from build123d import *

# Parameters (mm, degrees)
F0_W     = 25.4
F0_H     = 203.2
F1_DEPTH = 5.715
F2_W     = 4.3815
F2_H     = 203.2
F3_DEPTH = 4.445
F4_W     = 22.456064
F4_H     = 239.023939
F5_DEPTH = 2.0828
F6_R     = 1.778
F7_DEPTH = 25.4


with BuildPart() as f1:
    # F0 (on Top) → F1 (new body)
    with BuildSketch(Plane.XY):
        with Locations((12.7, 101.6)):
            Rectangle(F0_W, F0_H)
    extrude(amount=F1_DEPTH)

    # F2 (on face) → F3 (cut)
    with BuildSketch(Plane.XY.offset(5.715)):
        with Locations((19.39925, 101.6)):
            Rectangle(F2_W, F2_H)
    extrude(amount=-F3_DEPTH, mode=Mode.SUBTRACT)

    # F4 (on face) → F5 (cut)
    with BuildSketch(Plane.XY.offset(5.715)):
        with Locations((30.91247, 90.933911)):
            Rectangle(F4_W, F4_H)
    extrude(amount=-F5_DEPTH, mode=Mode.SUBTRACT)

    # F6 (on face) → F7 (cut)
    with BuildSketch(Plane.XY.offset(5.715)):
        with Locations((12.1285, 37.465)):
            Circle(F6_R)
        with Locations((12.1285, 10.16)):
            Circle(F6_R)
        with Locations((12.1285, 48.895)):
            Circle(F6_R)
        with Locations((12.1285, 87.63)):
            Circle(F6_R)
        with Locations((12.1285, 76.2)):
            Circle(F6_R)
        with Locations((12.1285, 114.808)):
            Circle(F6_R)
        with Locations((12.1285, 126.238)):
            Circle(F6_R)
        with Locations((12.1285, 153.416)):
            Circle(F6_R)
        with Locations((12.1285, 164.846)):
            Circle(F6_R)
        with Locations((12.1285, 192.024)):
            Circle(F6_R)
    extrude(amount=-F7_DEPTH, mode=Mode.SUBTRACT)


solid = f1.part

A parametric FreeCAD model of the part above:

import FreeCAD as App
import Part
import Sketcher

V = App.Vector
Q = App.Units.Quantity

doc = App.newDocument("Part")
body = doc.addObject("PartDesign::Body", "Body")

# Sketch on XY plane
sketch1 = body.newObject("Sketcher::SketchObject", "Sketch")
sketch1.AttachmentSupport = (doc.getObject("XY_Plane"), [""])
sketch1.MapMode = "FlatFace"
sketch1.addGeometry(Part.LineSegment(V(0, 203, 0), V(0, 0, 0)), False)
sketch1.addGeometry(Part.LineSegment(V(0, 0, 0), V(25, 0, 0)), False)
sketch1.addGeometry(Part.LineSegment(V(25, 0, 0), V(25, 203, 0)), False)
sketch1.addGeometry(Part.LineSegment(V(25, 203, 0), V(0, 203, 0)), False)
sketch1.addConstraint(Sketcher.Constraint("Coincident", 0, 2, 1, 1))
sketch1.addConstraint(Sketcher.Constraint("Coincident", 1, 2, 2, 1))
sketch1.addConstraint(Sketcher.Constraint("Coincident", 2, 2, 3, 1))
sketch1.addConstraint(Sketcher.Constraint("Coincident", 3, 2, 0, 1))
sketch1.addConstraint(Sketcher.Constraint("Vertical", 0))
sketch1.addConstraint(Sketcher.Constraint("Horizontal", 1))
sketch1.addConstraint(Sketcher.Constraint("Vertical", 2))
sketch1.addConstraint(Sketcher.Constraint("Horizontal", 3))
sketch1.addConstraint(Sketcher.Constraint("Coincident", 0, 2, -1, 1))
sketch1.addConstraint(Sketcher.Constraint("DistanceX", 1, 1, 1, 2, Q("1 in")))
sketch1.addConstraint(Sketcher.Constraint("DistanceY", 0, 2, 0, 1, Q("8 in")))
pad1 = body.newObject("PartDesign::Pad", "Pad")
pad1.Profile = sketch1
pad1.Length = Q("0.225 in")

# Sketch on XY plane
sketch2 = body.newObject("Sketcher::SketchObject", "Sketch001")
sketch2.AttachmentSupport = (doc.getObject("XY_Plane"), [""])
sketch2.MapMode = "FlatFace"
sketch2.AttachmentOffset = App.Placement(V(0, 0, 0.225 * 25.4), App.Rotation())
sketch2.addGeometry(Part.LineSegment(V(17.2, 203.2, 0), V(17.2, 0, 0)), False)
sketch2.addGeometry(Part.LineSegment(V(17.2, 0, 0), V(21.6, 0, 0)), False)
sketch2.addGeometry(Part.LineSegment(V(21.6, 0, 0), V(21.6, 203.2, 0)), False)
sketch2.addGeometry(Part.LineSegment(V(21.6, 203.2, 0), V(17.2, 203.2, 0)), False)
sketch2.addConstraint(Sketcher.Constraint("Coincident", 0, 2, 1, 1))
sketch2.addConstraint(Sketcher.Constraint("Coincident", 1, 2, 2, 1))
sketch2.addConstraint(Sketcher.Constraint("Coincident", 2, 2, 3, 1))
sketch2.addConstraint(Sketcher.Constraint("Coincident", 3, 2, 0, 1))
sketch2.addConstraint(Sketcher.Constraint("Vertical", 0))
sketch2.addConstraint(Sketcher.Constraint("Horizontal", 1))
sketch2.addConstraint(Sketcher.Constraint("Vertical", 2))
sketch2.addConstraint(Sketcher.Constraint("Horizontal", 3))
sketch2.addConstraint(Sketcher.Constraint("PointOnObject", 0, 2, -1))
sketch2.addConstraint(Sketcher.Constraint("DistanceY", 0, 2, 0, 1, Q("8 in")))
sketch2.addConstraint(Sketcher.Constraint("DistanceX", -1, 1, 1, 2, Q("0.85 in")))
sketch2.addConstraint(Sketcher.Constraint("DistanceX", 1, 1, 1, 2, Q("0.1725 in")))
pocket1 = body.newObject("PartDesign::Pocket", "Pocket")
pocket1.Profile = sketch2
pocket1.Length = Q("0.175 in")

# Sketch on XY plane
sketch3 = body.newObject("Sketcher::SketchObject", "Sketch002")
sketch3.AttachmentSupport = (doc.getObject("XY_Plane"), [""])
sketch3.MapMode = "FlatFace"
sketch3.AttachmentOffset = App.Placement(V(0, 0, 0.225 * 25.4), App.Rotation())
sketch3.addGeometry(Part.LineSegment(V(20, 210, 0), V(20, -29, 0)), False)
sketch3.addGeometry(Part.LineSegment(V(20, -29, 0), V(42, -29, 0)), False)
sketch3.addGeometry(Part.LineSegment(V(42, -29, 0), V(42, 210, 0)), False)
sketch3.addGeometry(Part.LineSegment(V(42, 210, 0), V(20, 210, 0)), False)
sketch3.addConstraint(Sketcher.Constraint("Coincident", 0, 2, 1, 1))
sketch3.addConstraint(Sketcher.Constraint("Coincident", 1, 2, 2, 1))
sketch3.addConstraint(Sketcher.Constraint("Coincident", 2, 2, 3, 1))
sketch3.addConstraint(Sketcher.Constraint("Coincident", 3, 2, 0, 1))
sketch3.addConstraint(Sketcher.Constraint("Vertical", 0))
sketch3.addConstraint(Sketcher.Constraint("Horizontal", 1))
sketch3.addConstraint(Sketcher.Constraint("Vertical", 2))
sketch3.addConstraint(Sketcher.Constraint("Horizontal", 3))
sketch3.addConstraint(Sketcher.Constraint("DistanceY", 0, 2, 0, 1, Q("239.023939 mm")))
sketch3.addConstraint(Sketcher.Constraint("DistanceX", -1, 1, 1, 2, Q("42.140502 mm")))
sketch3.addConstraint(Sketcher.Constraint("DistanceX", 1, 1, 1, 2, Q("22.456064 mm")))
sketch3.addConstraint(Sketcher.Constraint("DistanceY", 0, 2, -1, 1, Q("28.578059 mm")))
pocket2 = body.newObject("PartDesign::Pocket", "Pocket001")
pocket2.Profile = sketch3
pocket2.Length = Q("0.082 in")

# Sketch on XY plane
sketch4 = body.newObject("Sketcher::SketchObject", "Sketch003")
sketch4.AttachmentSupport = (doc.getObject("XY_Plane"), [""])
sketch4.MapMode = "FlatFace"
sketch4.AttachmentOffset = App.Placement(V(0, 0, 0.225 * 25.4), App.Rotation())
sketch4.addGeometry(Part.Circle(V(12.1, 37.5, 0), V(0, 0, 1), 1.8), False)
sketch4.addGeometry(Part.Circle(V(12.1, 10.2, 0), V(0, 0, 1), 1.8), False)
sketch4.addGeometry(Part.Circle(V(12.1, 48.9, 0), V(0, 0, 1), 1.8), False)
sketch4.addGeometry(Part.Circle(V(12.1, 87.6, 0), V(0, 0, 1), 1.8), False)
sketch4.addGeometry(Part.Circle(V(12.1, 76.2, 0), V(0, 0, 1), 1.8), False)
sketch4.addGeometry(Part.Circle(V(12.1, 114.8, 0), V(0, 0, 1), 1.8), False)
sketch4.addGeometry(Part.Circle(V(12.1, 126.2, 0), V(0, 0, 1), 1.8), False)
sketch4.addGeometry(Part.Circle(V(12.1, 153.4, 0), V(0, 0, 1), 1.8), False)
sketch4.addGeometry(Part.Circle(V(12.1, 164.8, 0), V(0, 0, 1), 1.8), False)
sketch4.addGeometry(Part.Circle(V(12.1, 192, 0), V(0, 0, 1), 1.8), False)
sketch4.addConstraint(Sketcher.Constraint("Equal", 0, 1))
sketch4.addConstraint(Sketcher.Constraint("Equal", 1, 2))
sketch4.addConstraint(Sketcher.Constraint("Equal", 2, 3))
sketch4.addConstraint(Sketcher.Constraint("Equal", 3, 4))
sketch4.addConstraint(Sketcher.Constraint("Equal", 4, 5))
sketch4.addConstraint(Sketcher.Constraint("Equal", 5, 6))
sketch4.addConstraint(Sketcher.Constraint("Equal", 6, 7))
sketch4.addConstraint(Sketcher.Constraint("Equal", 7, 8))
sketch4.addConstraint(Sketcher.Constraint("Equal", 8, 9))
sketch4.addConstraint(Sketcher.Constraint("Vertical", 0, 3, 1, 3))
sketch4.addConstraint(Sketcher.Constraint("Vertical", 1, 3, 2, 3))
sketch4.addConstraint(Sketcher.Constraint("Vertical", 2, 3, 3, 3))
sketch4.addConstraint(Sketcher.Constraint("Vertical", 3, 3, 4, 3))
sketch4.addConstraint(Sketcher.Constraint("Vertical", 4, 3, 5, 3))
sketch4.addConstraint(Sketcher.Constraint("Vertical", 5, 3, 6, 3))
sketch4.addConstraint(Sketcher.Constraint("Vertical", 6, 3, 7, 3))
sketch4.addConstraint(Sketcher.Constraint("Vertical", 7, 3, 8, 3))
sketch4.addConstraint(Sketcher.Constraint("Vertical", 8, 3, 9, 3))
sketch4.addConstraint(Sketcher.Constraint("Diameter", 0, Q("0.14 in")))
sketch4.addConstraint(Sketcher.Constraint("DistanceY", -1, 1, 4, 3, Q("3 in")))
sketch4.addConstraint(Sketcher.Constraint("DistanceY", -1, 1, 1, 3, Q("0.4 in")))
sketch4.addConstraint(Sketcher.Constraint("DistanceY", -1, 1, 3, 3, Q("3.45 in")))
sketch4.addConstraint(Sketcher.Constraint("DistanceY", -1, 1, 5, 3, Q("4.52 in")))
sketch4.addConstraint(Sketcher.Constraint("DistanceY", -1, 1, 6, 3, Q("4.97 in")))
sketch4.addConstraint(Sketcher.Constraint("DistanceY", -1, 1, 7, 3, Q("6.04 in")))
sketch4.addConstraint(Sketcher.Constraint("DistanceY", -1, 1, 8, 3, Q("6.49 in")))
sketch4.addConstraint(Sketcher.Constraint("DistanceY", -1, 1, 9, 3, Q("7.56 in")))
sketch4.addConstraint(Sketcher.Constraint("DistanceY", 0, 3, 2, 3, Q("0.45 in")))
sketch4.addConstraint(Sketcher.Constraint("DistanceY", -1, 1, 0, 3, Q("1.475 in")))
sketch4.addConstraint(Sketcher.Constraint("DistanceX", -1, 1, 0, 3, Q("0.4775 in")))
pocket3 = body.newObject("PartDesign::Pocket", "Pocket002")
pocket3.Profile = sketch4
pocket3.Length = Q("1 in")

doc.recompute()
